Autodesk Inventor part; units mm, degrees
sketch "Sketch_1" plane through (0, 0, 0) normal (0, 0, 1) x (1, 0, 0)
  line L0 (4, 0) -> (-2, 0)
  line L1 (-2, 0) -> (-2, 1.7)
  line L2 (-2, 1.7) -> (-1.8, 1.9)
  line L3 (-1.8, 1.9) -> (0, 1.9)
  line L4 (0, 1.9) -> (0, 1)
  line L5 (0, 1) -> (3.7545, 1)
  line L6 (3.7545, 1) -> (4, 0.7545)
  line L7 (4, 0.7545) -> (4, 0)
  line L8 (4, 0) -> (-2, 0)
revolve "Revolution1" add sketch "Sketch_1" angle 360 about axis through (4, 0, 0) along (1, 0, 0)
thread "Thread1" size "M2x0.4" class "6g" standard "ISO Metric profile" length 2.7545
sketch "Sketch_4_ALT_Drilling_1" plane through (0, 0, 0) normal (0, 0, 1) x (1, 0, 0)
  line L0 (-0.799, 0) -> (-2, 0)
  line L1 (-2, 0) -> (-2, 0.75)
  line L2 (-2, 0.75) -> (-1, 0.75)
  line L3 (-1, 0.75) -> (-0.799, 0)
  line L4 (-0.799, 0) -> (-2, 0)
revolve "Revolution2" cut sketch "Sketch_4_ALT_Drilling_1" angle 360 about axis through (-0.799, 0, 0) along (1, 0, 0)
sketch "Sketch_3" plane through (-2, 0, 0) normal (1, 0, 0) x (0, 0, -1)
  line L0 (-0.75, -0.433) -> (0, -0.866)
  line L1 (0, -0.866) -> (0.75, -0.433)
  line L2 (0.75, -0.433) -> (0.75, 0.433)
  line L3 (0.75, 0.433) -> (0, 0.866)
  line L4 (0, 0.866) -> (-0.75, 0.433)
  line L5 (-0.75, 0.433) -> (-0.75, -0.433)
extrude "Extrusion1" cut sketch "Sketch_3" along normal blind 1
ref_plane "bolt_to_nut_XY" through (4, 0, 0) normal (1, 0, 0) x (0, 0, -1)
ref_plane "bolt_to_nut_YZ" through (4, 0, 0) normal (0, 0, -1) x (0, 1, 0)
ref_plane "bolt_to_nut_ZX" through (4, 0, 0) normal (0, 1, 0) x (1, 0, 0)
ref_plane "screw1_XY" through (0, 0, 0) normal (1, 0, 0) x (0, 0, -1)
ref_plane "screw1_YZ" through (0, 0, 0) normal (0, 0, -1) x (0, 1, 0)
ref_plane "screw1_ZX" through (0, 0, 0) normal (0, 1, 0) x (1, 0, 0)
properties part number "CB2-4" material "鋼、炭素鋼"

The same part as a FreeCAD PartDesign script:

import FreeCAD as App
import Part
import Sketcher
Q = App.Units.Quantity

doc = App.newDocument("Part")
body = doc.addObject("PartDesign::Body", "Body")

# Sketch on XY plane
sketch1 = body.newObject("Sketcher::SketchObject", "Sketch")
sketch1.AttachmentSupport = (doc.getObject("XY_Plane"), [""])
sketch1.MapMode = "FlatFace"
sketch1.addGeometry(Part.LineSegment(App.Vector(-2, 0, 0), App.Vector(4, 0, 0)), False)
sketch1.addGeometry(Part.LineSegment(App.Vector(4, 0, 0), App.Vector(4, 0.75, 0)), False)
sketch1.addGeometry(Part.LineSegment(App.Vector(4, 0.75, 0), App.Vector(3.75, 1, 0)), False)
sketch1.addGeometry(Part.LineSegment(App.Vector(3.75, 1, 0), App.Vector(0, 1, 0)), False)
sketch1.addGeometry(Part.LineSegment(App.Vector(0, 1, 0), App.Vector(0, 1.9, 0)), False)
sketch1.addGeometry(Part.LineSegment(App.Vector(0, 1.9, 0), App.Vector(-1.8, 1.9, 0)), False)
sketch1.addGeometry(Part.LineSegment(App.Vector(-1.8, 1.9, 0), App.Vector(-2, 1.7, 0)), False)
sketch1.addGeometry(Part.LineSegment(App.Vector(-2, 1.7, 0), App.Vector(-2, 0, 0)), False)
sketch1.addConstraint(Sketcher.Constraint("Coincident", 0, 2, 1, 1))
sketch1.addConstraint(Sketcher.Constraint("Coincident", 1, 2, 2, 1))
sketch1.addConstraint(Sketcher.Constraint("Coincident", 2, 2, 3, 1))
sketch1.addConstraint(Sketcher.Constraint("Coincident", 3, 2, 4, 1))
sketch1.addConstraint(Sketcher.Constraint("Coincident", 4, 2, 5, 1))
sketch1.addConstraint(Sketcher.Constraint("Coincident", 5, 2, 6, 1))
sketch1.addConstraint(Sketcher.Constraint("Coincident", 6, 2, 7, 1))
sketch1.addConstraint(Sketcher.Constraint("Coincident", 7, 2, 0, 1))
sketch1.addConstraint(Sketcher.Constraint("Horizontal", 0))
sketch1.addConstraint(Sketcher.Constraint("Vertical", 1))
sketch1.addConstraint(Sketcher.Constraint("Horizontal", 3))
sketch1.addConstraint(Sketcher.Constraint("Vertical", 4))
sketch1.addConstraint(Sketcher.Constraint("Horizontal", 5))
sketch1.addConstraint(Sketcher.Constraint("Vertical", 7))
sketch1.addConstraint(Sketcher.Constraint("PointOnObject", 0, 2, -1))
sketch1.addConstraint(Sketcher.Constraint("PointOnObject", 3, 2, -2))
sketch1.addConstraint(Sketcher.Constraint("Perpendicular", 2, 6))
sketch1.addConstraint(Sketcher.Constraint("DistanceX", 0, 1, 0, 2, Q("6 mm")))
sketch1.addConstraint(Sketcher.Constraint("Angle", 2, Q("135 deg")))
sketch1.addConstraint(Sketcher.Constraint("DistanceX", 5, 2, 5, 1, Q("1.8 mm")))
sketch1.addConstraint(Sketcher.Constraint("DistanceY", 4, 1, 4, 2, Q("0.9 mm")))
sketch1.addConstraint(Sketcher.Constraint("DistanceY", 7, 2, 7, 1, Q("1.7 mm")))
sketch1.addConstraint(Sketcher.Constraint("DistanceX", -1, 1, 0, 2, Q("4 mm")))
sketch1.addConstraint(Sketcher.Constraint("DistanceX", 3, 2, 3, 1, Q("3.7545 mm")))
revolution = body.newObject("PartDesign::Revolution", "Revolution")
revolution.Profile = sketch1
revolution.ReferenceAxis = (sketch1, ["H_Axis"])
revolution.Angle = 360

# Sketch on XY plane
sketch2 = body.newObject("Sketcher::SketchObject", "Sketch001")
sketch2.AttachmentSupport = (doc.getObject("XY_Plane"), [""])
sketch2.MapMode = "FlatFace"
sketch2.addGeometry(Part.LineSegment(App.Vector(-2, 0, 0), App.Vector(-0.8, 0, 0)), False)
sketch2.addGeometry(Part.LineSegment(App.Vector(-0.8, 0, 0), App.Vector(-1, 0.8, 0)), False)
sketch2.addGeometry(Part.LineSegment(App.Vector(-1, 0.8, 0), App.Vector(-2, 0.8, 0)), False)
sketch2.addGeometry(Part.LineSegment(App.Vector(-2, 0.8, 0), App.Vector(-2, 0, 0)), False)
sketch2.addConstraint(Sketcher.Constraint("Coincident", 0, 2, 1, 1))
sketch2.addConstraint(Sketcher.Constraint("Coincident", 1, 2, 2, 1))
sketch2.addConstraint(Sketcher.Constraint("Coincident", 2, 2, 3, 1))
sketch2.addConstraint(Sketcher.Constraint("Coincident", 3, 2, 0, 1))
sketch2.addConstraint(Sketcher.Constraint("Horizontal", 0))
sketch2.addConstraint(Sketcher.Constraint("Horizontal", 2))
sketch2.addConstraint(Sketcher.Constraint("Vertical", 3))
sketch2.addConstraint(Sketcher.Constraint("PointOnObject", 0, 2, -1))
sketch2.addConstraint(Sketcher.Constraint("DistanceX", 2, 2, 2, 1, Q("1 mm")))
sketch2.addConstraint(Sketcher.Constraint("DistanceX", 1, 2, -1, 1, Q("1 mm")))
sketch2.addConstraint(Sketcher.Constraint("DistanceY", 3, 2, 3, 1, Q("0.75 mm")))
sketch2.addConstraint(Sketcher.Constraint("DistanceX", 0, 1, 0, 2, Q("1.201 mm")))
groove = body.newObject("PartDesign::Groove", "Groove")
groove.Profile = sketch2
groove.ReferenceAxis = (sketch2, ["H_Axis"])
groove.Angle = 360

# Sketch on YZ plane
sketch3 = body.newObject("Sketcher::SketchObject", "Sketch002")
sketch3.AttachmentSupport = (doc.getObject("YZ_Plane"), [""])
sketch3.MapMode = "FlatFace"
sketch3.AttachmentOffset = App.Placement(App.Vector(0, 0, -2), App.Rotation())
sketch3.addGeometry(Part.LineSegment(App.Vector(0.4, 0.8, 0), App.Vector(-0.4, 0.8, 0)), False)
sketch3.addGeometry(Part.LineSegment(App.Vector(-0.4, 0.8, 0), App.Vector(-0.9, 0, 0)), False)
sketch3.addGeometry(Part.LineSegment(App.Vector(-0.9, 0, 0), App.Vector(-0.4, -0.8, 0)), False)
sketch3.addGeometry(Part.LineSegment(App.Vector(-0.4, -0.8, 0), App.Vector(0.4, -0.8, 0)), False)
sketch3.addGeometry(Part.LineSegment(App.Vector(0.4, -0.8, 0), App.Vector(0.9, 0, 0)), False)
sketch3.addGeometry(Part.LineSegment(App.Vector(0.9, 0, 0), App.Vector(0.4, 0.8, 0)), False)
sketch3.addConstraint(Sketcher.Constraint("Coincident", 0, 2, 1, 1))
sketch3.addConstraint(Sketcher.Constraint("Coincident", 1, 2, 2, 1))
sketch3.addConstraint(Sketcher.Constraint("Coincident", 2, 2, 3, 1))
sketch3.addConstraint(Sketcher.Constraint("Coincident", 3, 2, 4, 1))
sketch3.addConstraint(Sketcher.Constraint("Coincident", 4, 2, 5, 1))
sketch3.addConstraint(Sketcher.Constraint("Coincident", 5, 2, 0, 1))
sketch3.addConstraint(Sketcher.Constraint("Horizontal", 0))
sketch3.addConstraint(Sketcher.Constraint("Horizontal", 3))
sketch3.addConstraint(Sketcher.Constraint("Symmetric", 0, 2, 3, 2, -1, 1))
sketch3.addConstraint(Sketcher.Constraint("Symmetric", 1, 2, 4, 2, -1, 1))
sketch3.addConstraint(Sketcher.Constraint("PointOnObject", 1, 2, -1))
sketch3.addConstraint(Sketcher.Constraint("Parallel", 2, 5))
sketch3.addConstraint(Sketcher.Constraint("Vertical", 0, 2, 2, 2))
sketch3.addConstraint(Sketcher.Constraint("Angle", 1, Q("-119.9993 deg")))
sketch3.addConstraint(Sketcher.Constraint("DistanceY", 2, 2, 0, 2, Q("1.5 mm")))
sketch3.addConstraint(Sketcher.Constraint("DistanceX", 0, 2, 0, 1, Q("0.866 mm")))
pocket1 = body.newObject("PartDesign::Pocket", "Pocket")
pocket1.Profile = sketch3
pocket1.Length = 1
pocket1.Reversed = True

doc.recompute()
